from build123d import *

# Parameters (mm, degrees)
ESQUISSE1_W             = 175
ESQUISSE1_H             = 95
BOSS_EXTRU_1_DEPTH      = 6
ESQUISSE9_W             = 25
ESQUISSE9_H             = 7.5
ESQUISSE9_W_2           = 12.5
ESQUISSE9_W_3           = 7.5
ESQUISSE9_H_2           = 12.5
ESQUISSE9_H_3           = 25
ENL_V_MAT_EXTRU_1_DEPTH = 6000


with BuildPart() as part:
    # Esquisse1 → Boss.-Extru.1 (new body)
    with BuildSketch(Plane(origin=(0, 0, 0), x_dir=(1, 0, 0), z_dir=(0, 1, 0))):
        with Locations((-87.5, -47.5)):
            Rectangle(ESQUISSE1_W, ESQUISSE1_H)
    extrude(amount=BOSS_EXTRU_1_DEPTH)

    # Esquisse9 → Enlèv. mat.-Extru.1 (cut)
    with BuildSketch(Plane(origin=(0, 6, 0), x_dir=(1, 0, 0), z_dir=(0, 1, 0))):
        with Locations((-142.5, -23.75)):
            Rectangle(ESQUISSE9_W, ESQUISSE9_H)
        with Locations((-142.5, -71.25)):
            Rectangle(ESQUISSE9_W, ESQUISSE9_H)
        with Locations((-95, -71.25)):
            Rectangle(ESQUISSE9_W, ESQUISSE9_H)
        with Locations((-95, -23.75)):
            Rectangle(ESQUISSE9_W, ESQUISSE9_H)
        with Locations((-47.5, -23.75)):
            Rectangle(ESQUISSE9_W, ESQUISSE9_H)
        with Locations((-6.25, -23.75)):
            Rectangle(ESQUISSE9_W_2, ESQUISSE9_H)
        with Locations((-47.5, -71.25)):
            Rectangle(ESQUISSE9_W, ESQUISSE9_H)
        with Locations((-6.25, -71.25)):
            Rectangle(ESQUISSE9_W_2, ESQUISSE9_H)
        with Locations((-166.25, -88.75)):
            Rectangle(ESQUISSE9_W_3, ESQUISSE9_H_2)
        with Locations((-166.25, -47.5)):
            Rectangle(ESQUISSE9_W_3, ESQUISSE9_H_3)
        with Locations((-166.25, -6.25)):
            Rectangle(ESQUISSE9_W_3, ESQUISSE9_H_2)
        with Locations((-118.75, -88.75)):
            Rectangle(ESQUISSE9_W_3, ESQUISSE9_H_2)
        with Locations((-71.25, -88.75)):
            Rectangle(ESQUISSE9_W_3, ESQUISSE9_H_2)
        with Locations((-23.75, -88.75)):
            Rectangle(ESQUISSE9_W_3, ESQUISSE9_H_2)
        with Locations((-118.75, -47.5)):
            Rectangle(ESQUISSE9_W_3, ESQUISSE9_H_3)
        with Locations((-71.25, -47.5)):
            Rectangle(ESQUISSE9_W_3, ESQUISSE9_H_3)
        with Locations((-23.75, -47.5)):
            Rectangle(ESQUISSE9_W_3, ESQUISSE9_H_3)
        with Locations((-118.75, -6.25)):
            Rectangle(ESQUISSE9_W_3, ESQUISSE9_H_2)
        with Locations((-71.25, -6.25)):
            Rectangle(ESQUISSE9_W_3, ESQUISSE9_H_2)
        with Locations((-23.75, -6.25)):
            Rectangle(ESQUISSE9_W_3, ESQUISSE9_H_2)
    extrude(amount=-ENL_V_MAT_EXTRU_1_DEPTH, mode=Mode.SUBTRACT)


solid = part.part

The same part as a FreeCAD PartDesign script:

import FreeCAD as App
import Part
import Sketcher
from FreeCAD import Vector


def add_polygon(sketch, points):
    """Adds a closed chain of lines whose ends are joined by coincident constraints."""
    first, n = sketch.GeometryCount, len(points)
    for a, b in zip(points, points[1:] + points[:1]):
        sketch.addGeometry(Part.LineSegment(App.Vector(*a, 0), App.Vector(*b, 0)), False)
    for i in range(n):
        sketch.addConstraint(Sketcher.Constraint("Coincident", first + i, 2, first + (i + 1) % n, 1))

doc = App.newDocument("Part")
body = doc.addObject("PartDesign::Body", "Body")

# Sketch on XZ plane
sketch1 = body.newObject("Sketcher::SketchObject", "Sketch")
sketch1.AttachmentSupport = (doc.getObject("XZ_Plane"), [""])
sketch1.MapMode = "FlatFace"
add_polygon(sketch1, [(-175, 0), (-175, 95), (0, 95), (0, 0)])  # lines 0-3
sketch1.addConstraint([
    Sketcher.Constraint("Vertical", 0),
    Sketcher.Constraint("Horizontal", 1),
    Sketcher.Constraint("Vertical", 2),
    Sketcher.Constraint("Horizontal", 3),
    Sketcher.Constraint("Coincident", 2, 2, -1, 1),
    Sketcher.Constraint("DistanceX", 1, 1, 1, 2, 175.0),
    Sketcher.Constraint("DistanceY", 0, 1, 0, 2, 95.0),
])
pad1 = body.newObject("PartDesign::Pad", "Pad")
pad1.Profile = sketch1
pad1.Length = 6
pad1.Reversed = True

# Sketch on XZ plane
sketch2 = body.newObject("Sketcher::SketchObject", "Sketch001")
sketch2.AttachmentSupport = (doc.getObject("XZ_Plane"), [""])
sketch2.MapMode = "FlatFace"
sketch2.AttachmentOffset = App.Placement(Vector(0, 0, -6), App.Rotation())
add_polygon(sketch2, [(-155, 20), (-155, 28), (-130, 28), (-130, 20)])  # lines 0-3
add_polygon(sketch2, [(-155, 68), (-155, 75), (-130, 75), (-130, 68)])  # lines 4-7
add_polygon(sketch2, [(-108, 68), (-108, 75), (-82, 75), (-82, 68)])  # lines 8-11
add_polygon(sketch2, [(-108, 20), (-108, 28), (-82, 28), (-82, 20)])  # lines 12-15
add_polygon(sketch2, [(-60, 20), (-60, 28), (-35, 28), (-35, 20)])  # lines 16-19
add_polygon(sketch2, [(-12, 20), (-12, 28), (0, 28), (0, 20)])  # lines 20-23
add_polygon(sketch2, [(-60, 68), (-60, 75), (-35, 75), (-35, 68)])  # lines 24-27
add_polygon(sketch2, [(-12, 68), (-12, 75), (0, 75), (0, 68)])  # lines 28-31
add_polygon(sketch2, [(-170, 82), (-170, 95), (-162, 95), (-162, 82)])  # lines 32-35
add_polygon(sketch2, [(-170, 35), (-170, 60), (-162, 60), (-162, 35)])  # lines 36-39
add_polygon(sketch2, [(-170, 0), (-170, 12), (-162, 12), (-162, 0)])  # lines 40-43
add_polygon(sketch2, [(-122, 82), (-122, 95), (-115, 95), (-115, 82)])  # lines 44-47
add_polygon(sketch2, [(-75, 82), (-75, 95), (-68, 95), (-68, 82)])  # lines 48-51
add_polygon(sketch2, [(-28, 82), (-28, 95), (-20, 95), (-20, 82)])  # lines 52-55
add_polygon(sketch2, [(-122, 35), (-122, 60), (-115, 60), (-115, 35)])  # lines 56-59
add_polygon(sketch2, [(-75, 35), (-75, 60), (-68, 60), (-68, 35)])  # lines 60-63
add_polygon(sketch2, [(-28, 35), (-28, 60), (-20, 60), (-20, 35)])  # lines 64-67
add_polygon(sketch2, [(-122, 0), (-122, 12), (-115, 12), (-115, 0)])  # lines 68-71
add_polygon(sketch2, [(-75, 0), (-75, 12), (-68, 12), (-68, 0)])  # lines 72-75
add_polygon(sketch2, [(-28, 0), (-28, 12), (-20, 12), (-20, 0)])  # lines 76-79
sketch2.addConstraint([
    Sketcher.Constraint("Vertical", 0),
    Sketcher.Constraint("Horizontal", 1),
    Sketcher.Constraint("Vertical", 2),
    Sketcher.Constraint("Horizontal", 3),
    Sketcher.Constraint("Vertical", 4),
    Sketcher.Constraint("Horizontal", 5),
    Sketcher.Constraint("Vertical", 6),
    Sketcher.Constraint("Horizontal", 7),
    Sketcher.Constraint("Vertical", 8),
    Sketcher.Constraint("Horizontal", 9),
    Sketcher.Constraint("Vertical", 10),
    Sketcher.Constraint("Horizontal", 11),
    Sketcher.Constraint("Vertical", 12),
    Sketcher.Constraint("Horizontal", 13),
    Sketcher.Constraint("Vertical", 14),
    Sketcher.Constraint("Horizontal", 15),
    Sketcher.Constraint("Vertical", 16),
    Sketcher.Constraint("Horizontal", 17),
    Sketcher.Constraint("Vertical", 18),
    Sketcher.Constraint("Horizontal", 19),
    Sketcher.Constraint("Vertical", 20),
    Sketcher.Constraint("Horizontal", 21),
    Sketcher.Constraint("Vertical", 22),
    Sketcher.Constraint("Horizontal", 23),
    Sketcher.Constraint("Vertical", 24),
    Sketcher.Constraint("Horizontal", 25),
    Sketcher.Constraint("Vertical", 26),
    Sketcher.Constraint("Horizontal", 27),
    Sketcher.Constraint("Vertical", 28),
    Sketcher.Constraint("Horizontal", 29),
    Sketcher.Constraint("Vertical", 30),
    Sketcher.Constraint("Horizontal", 31),
    Sketcher.Constraint("Vertical", 32),
    Sketcher.Constraint("Horizontal", 33),
    Sketcher.Constraint("Vertical", 34),
    Sketcher.Constraint("Horizontal", 35),
    Sketcher.Constraint("Vertical", 36),
    Sketcher.Constraint("Horizontal", 37),
    Sketcher.Constraint("Vertical", 38),
    Sketcher.Constraint("Horizontal", 39),
    Sketcher.Constraint("Vertical", 40),
    Sketcher.Constraint("Horizontal", 41),
    Sketcher.Constraint("Vertical", 42),
    Sketcher.Constraint("Horizontal", 43),
    Sketcher.Constraint("Vertical", 44),
    Sketcher.Constraint("Horizontal", 45),
    Sketcher.Constraint("Vertical", 46),
    Sketcher.Constraint("Horizontal", 47),
    Sketcher.Constraint("Vertical", 48),
    Sketcher.Constraint("Horizontal", 49),
    Sketcher.Constraint("Vertical", 50),
    Sketcher.Constraint("Horizontal", 51),
    Sketcher.Constraint("Vertical", 52),
    Sketcher.Constraint("Horizontal", 53),
    Sketcher.Constraint("Vertical", 54),
    Sketcher.Constraint("Horizontal", 55),
    Sketcher.Constraint("Vertical", 56),
    Sketcher.Constraint("Horizontal", 57),
    Sketcher.Constraint("Vertical", 58),
    Sketcher.Constraint("Horizontal", 59),
    Sketcher.Constraint("Vertical", 60),
    Sketcher.Constraint("Horizontal", 61),
    Sketcher.Constraint("Vertical", 62),
    Sketcher.Constraint("Horizontal", 63),
    Sketcher.Constraint("Vertical", 64),
    Sketcher.Constraint("Horizontal", 65),
    Sketcher.Constraint("Vertical", 66),
    Sketcher.Constraint("Horizontal", 67),
    Sketcher.Constraint("Vertical", 68),
    Sketcher.Constraint("Horizontal", 69),
    Sketcher.Constraint("Vertical", 70),
    Sketcher.Constraint("Horizontal", 71),
    Sketcher.Constraint("Vertical", 72),
    Sketcher.Constraint("Horizontal", 73),
    Sketcher.Constraint("Vertical", 74),
    Sketcher.Constraint("Horizontal", 75),
    Sketcher.Constraint("Vertical", 76),
    Sketcher.Constraint("Horizontal", 77),
    Sketcher.Constraint("Vertical", 78),
    Sketcher.Constraint("Horizontal", 79),
    Sketcher.Constraint("PointOnObject", 21, 2, -2),
    Sketcher.Constraint("PointOnObject", 29, 2, -2),
    Sketcher.Constraint("PointOnObject", 42, 2, -1),
    Sketcher.Constraint("PointOnObject", 70, 2, -1),
    Sketcher.Constraint("PointOnObject", 74, 2, -1),
    Sketcher.Constraint("PointOnObject", 78, 2, -1),
    Sketcher.Constraint("Horizontal", 5, 2, 8, 2),
    Sketcher.Constraint("Horizontal", 7, 2, 10, 2),
    Sketcher.Constraint("Horizontal", 1, 2, 12, 2),
    Sketcher.Constraint("Horizontal", 3, 2, 14, 2),
    Sketcher.Constraint("Horizontal", 13, 2, 16, 2),
    Sketcher.Constraint("Horizontal", 15, 2, 18, 2),
    Sketcher.Constraint("Horizontal", 17, 2, 20, 2),
    Sketcher.Constraint("Horizontal", 19, 2, 22, 2),
    Sketcher.Constraint("Horizontal", 9, 2, 24, 2),
    Sketcher.Constraint("Horizontal", 11, 2, 26, 2),
    Sketcher.Constraint("Horizontal", 25, 2, 28, 2),
    Sketcher.Constraint("Horizontal", 27, 2, 30, 2),
    Sketcher.Constraint("Horizontal", 33, 2, 44, 2),
    Sketcher.Constraint("Horizontal", 35, 2, 46, 2),
    Sketcher.Constraint("Horizontal", 45, 2, 48, 2),
    Sketcher.Constraint("Horizontal", 47, 2, 50, 2),
    Sketcher.Constraint("Horizontal", 49, 2, 52, 2),
    Sketcher.Constraint("Horizontal", 51, 2, 54, 2),
    Sketcher.Constraint("Horizontal", 37, 2, 56, 2),
    Sketcher.Constraint("Horizontal", 39, 2, 58, 2),
    Sketcher.Constraint("Horizontal", 57, 2, 60, 2),
    Sketcher.Constraint("Horizontal", 59, 2, 62, 2),
    Sketcher.Constraint("Horizontal", 61, 2, 64, 2),
    Sketcher.Constraint("Horizontal", 63, 2, 66, 2),
    Sketcher.Constraint("Horizontal", 41, 2, 68, 2),
    Sketcher.Constraint("Horizontal", 69, 2, 72, 2),
    Sketcher.Constraint("Horizontal", 73, 2, 76, 2),
    Sketcher.Constraint("Vertical", 3, 2, 4, 2),
    Sketcher.Constraint("Vertical", 2, 2, 5, 2),
    Sketcher.Constraint("Vertical", 11, 2, 12, 2),
    Sketcher.Constraint("Vertical", 10, 2, 13, 2),
    Sketcher.Constraint("Vertical", 19, 2, 24, 2),
    Sketcher.Constraint("Vertical", 18, 2, 25, 2),
    Sketcher.Constraint("Vertical", 23, 2, 28, 2),
    Sketcher.Constraint("Vertical", 35, 2, 36, 2),
    Sketcher.Constraint("Vertical", 34, 2, 37, 2),
    Sketcher.Constraint("Vertical", 39, 2, 40, 2),
    Sketcher.Constraint("Vertical", 38, 2, 41, 2),
    Sketcher.Constraint("Vertical", 47, 2, 56, 2),
    Sketcher.Constraint("Vertical", 46, 2, 57, 2),
    Sketcher.Constraint("Vertical", 51, 2, 60, 2),
    Sketcher.Constraint("Vertical", 50, 2, 61, 2),
    Sketcher.Constraint("Vertical", 55, 2, 64, 2),
    Sketcher.Constraint("Vertical", 54, 2, 65, 2),
    Sketcher.Constraint("Vertical", 59, 2, 68, 2),
    Sketcher.Constraint("Vertical", 58, 2, 69, 2),
    Sketcher.Constraint("Vertical", 63, 2, 72, 2),
    Sketcher.Constraint("Vertical", 62, 2, 73, 2),
    Sketcher.Constraint("Vertical", 67, 2, 76, 2),
    Sketcher.Constraint("Vertical", 66, 2, 77, 2),
    Sketcher.Constraint("Equal", 7, 9),
    Sketcher.Constraint("Equal", 15, 17),
    Sketcher.Constraint("Equal", 43, 45),
    Sketcher.Constraint("Equal", 47, 49),
    Sketcher.Constraint("Equal", 51, 53),
    Sketcher.Constraint("Equal", 79, 0),
    Sketcher.Constraint("Equal", 2, 4),
    Sketcher.Constraint("Equal", 31, 32),
    Sketcher.Constraint("Equal", 27, 36),
    Sketcher.Constraint("Equal", 34, 40),
    Sketcher.Constraint("DistanceX", 1, 1, 1, 2, 25.0),
    Sketcher.Constraint("DistanceX", 21, 1, 21, 2, 12.5),
    Sketcher.Constraint("DistanceX", 33, 1, 33, 2, 7.5),
    Sketcher.Constraint("DistanceX", 0, 2, -1, 1, 155.0),
    Sketcher.Constraint("DistanceY", -1, 1, 2, 2, 20.0),
    Sketcher.Constraint("DistanceY", -1, 1, 4, 2, 75.0),
    Sketcher.Constraint("DistanceX", 16, 2, -1, 1, 60.0),
    Sketcher.Constraint("DistanceX", 32, 2, -1, 1, 170.0),
    Sketcher.Constraint("DistanceY", -1, 1, 32, 2, 95.0),
    Sketcher.Constraint("DistanceY", -1, 1, 36, 2, 60.0),
    Sketcher.Constraint("DistanceX", 45, 2, -1, 1, 115.0),
    Sketcher.Constraint("DistanceX", 48, 2, -1, 1, 75.0),
    Sketcher.Constraint("DistanceX", 53, 2, -1, 1, 20.0),
    Sketcher.Constraint("DistanceX", 8, 2, -1, 1, 107.5),
])
pocket1 = body.newObject("PartDesign::Pocket", "Pocket")
pocket1.Profile = sketch2
pocket1.Length = 6000
pocket1.Reversed = True

doc.recompute()
